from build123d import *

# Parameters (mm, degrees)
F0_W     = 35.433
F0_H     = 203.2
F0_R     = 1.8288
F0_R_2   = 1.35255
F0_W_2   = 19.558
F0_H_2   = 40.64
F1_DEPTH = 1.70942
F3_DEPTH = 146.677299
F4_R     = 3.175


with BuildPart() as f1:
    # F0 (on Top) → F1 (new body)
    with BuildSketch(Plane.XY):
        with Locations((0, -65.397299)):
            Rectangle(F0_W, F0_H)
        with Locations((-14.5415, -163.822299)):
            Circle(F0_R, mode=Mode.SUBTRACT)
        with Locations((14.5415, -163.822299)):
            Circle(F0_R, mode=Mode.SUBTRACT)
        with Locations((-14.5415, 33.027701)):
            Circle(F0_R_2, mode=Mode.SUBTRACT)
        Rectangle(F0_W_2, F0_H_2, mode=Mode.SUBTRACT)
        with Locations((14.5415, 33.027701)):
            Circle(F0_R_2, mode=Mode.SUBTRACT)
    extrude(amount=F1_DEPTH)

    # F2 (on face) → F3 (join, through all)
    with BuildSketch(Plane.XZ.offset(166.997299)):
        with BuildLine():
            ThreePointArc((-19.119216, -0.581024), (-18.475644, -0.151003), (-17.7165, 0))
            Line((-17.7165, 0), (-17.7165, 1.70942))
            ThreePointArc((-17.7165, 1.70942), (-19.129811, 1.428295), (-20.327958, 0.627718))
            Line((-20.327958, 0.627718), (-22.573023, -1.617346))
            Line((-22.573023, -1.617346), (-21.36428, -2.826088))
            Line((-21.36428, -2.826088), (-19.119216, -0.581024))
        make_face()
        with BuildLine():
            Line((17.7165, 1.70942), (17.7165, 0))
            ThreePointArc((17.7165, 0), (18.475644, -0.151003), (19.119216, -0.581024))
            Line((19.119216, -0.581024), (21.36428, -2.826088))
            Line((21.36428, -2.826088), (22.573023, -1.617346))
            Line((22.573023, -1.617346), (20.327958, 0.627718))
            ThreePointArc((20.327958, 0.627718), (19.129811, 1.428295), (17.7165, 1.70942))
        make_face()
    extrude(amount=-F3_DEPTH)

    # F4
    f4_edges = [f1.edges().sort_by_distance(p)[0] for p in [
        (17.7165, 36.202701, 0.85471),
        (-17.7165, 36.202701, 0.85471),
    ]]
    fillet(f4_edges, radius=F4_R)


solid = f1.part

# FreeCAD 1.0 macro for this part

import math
import FreeCAD as App
import Part
import Sketcher

V = App.Vector
Q = App.Units.Quantity


def edges_at(feature, points):
    """Names of the edges that pass closest to the given points."""
    edges = feature.Shape.Edges
    near = lambda p: min(range(len(edges)), key=lambda i: edges[i].distToShape(Part.Vertex(*p))[0])
    return sorted({f"Edge{near(p) + 1}" for p in points})

doc = App.newDocument("Part")
body = doc.addObject("PartDesign::Body", "Body")

# Sketch on XY plane
sketch1 = body.newObject("Sketcher::SketchObject", "Sketch")
sketch1.AttachmentSupport = (doc.getObject("XY_Plane"), [""])
sketch1.MapMode = "FlatFace"
sketch1.addGeometry([
    Part.LineSegment(V(-17.7, 36.2, 0), V(-17.7, -167, 0)),  # 0
    Part.LineSegment(V(-17.7, -167, 0), V(17.7, -167, 0)),  # 1
    Part.LineSegment(V(17.7, -167, 0), V(17.7, 36.2, 0)),  # 2
    Part.LineSegment(V(17.7, 36.2, 0), V(-17.7, 36.2, 0)),  # 3
    Part.Circle(V(-14.5, -163.8, 0), V(0, 0, 1), 1.8),  # 4
    Part.Circle(V(14.5, -163.8, 0), V(0, 0, 1), 1.8),  # 5
    Part.Circle(V(-14.5, 33, 0), V(0, 0, 1), 1.4),  # 6
    Part.LineSegment(V(9.8, -20.3, 0), V(-9.8, -20.3, 0)),  # 7
    Part.LineSegment(V(-9.8, -20.3, 0), V(-9.8, 20.3, 0)),  # 8
    Part.LineSegment(V(-9.8, 20.3, 0), V(9.8, 20.3, 0)),  # 9
    Part.LineSegment(V(9.8, 20.3, 0), V(9.8, -20.3, 0)),  # 10
    Part.Circle(V(14.5, 33, 0), V(0, 0, 1), 1.4),  # 11
], False)
sketch1.addConstraint([
    Sketcher.Constraint("Coincident", 0, 2, 1, 1),
    Sketcher.Constraint("Coincident", 1, 2, 2, 1),
    Sketcher.Constraint("Coincident", 2, 2, 3, 1),
    Sketcher.Constraint("Coincident", 3, 2, 0, 1),
    Sketcher.Constraint("Coincident", 7, 2, 8, 1),
    Sketcher.Constraint("Coincident", 8, 2, 9, 1),
    Sketcher.Constraint("Coincident", 9, 2, 10, 1),
    Sketcher.Constraint("Coincident", 10, 2, 7, 1),
    Sketcher.Constraint("Vertical", 0),
    Sketcher.Constraint("Horizontal", 1),
    Sketcher.Constraint("Vertical", 2),
    Sketcher.Constraint("Horizontal", 3),
    Sketcher.Constraint("Horizontal", 7),
    Sketcher.Constraint("Vertical", 8),
    Sketcher.Constraint("Horizontal", 9),
    Sketcher.Constraint("Vertical", 10),
    Sketcher.Constraint("Equal", 4, 5),
    Sketcher.Constraint("Equal", 6, 11),
    Sketcher.Constraint("Symmetric", 7, 2, 9, 2, -1, 1),
    Sketcher.Constraint("Symmetric", 4, 3, 5, 3, -2),
    Sketcher.Constraint("Symmetric", 6, 3, 11, 3, -2),
    Sketcher.Constraint("Vertical", 4, 3, 6, 3),
    Sketcher.Constraint("DistanceY", 0, 2, 0, 1, Q("8 in")),
    Sketcher.Constraint("Diameter", 4, Q("0.144 in")),
    Sketcher.Constraint("DistanceY", 8, 1, 8, 2, Q("1.6 in")),
    Sketcher.Constraint("Diameter", 6, Q("0.1065 in")),
    Sketcher.Constraint("DistanceX", 7, 2, 7, 1, Q("0.77 in")),
    Sketcher.Constraint("DistanceX", 1, 1, 1, 2, Q("1.395 in")),
    Sketcher.Constraint("DistanceY", 4, 3, 6, 3, Q("7.75 in")),
    Sketcher.Constraint("DistanceX", 0, 2, 5, 3, Q("1.27 in")),
    Sketcher.Constraint("DistanceX", 4, 3, 1, 2, Q("1.27 in")),
    Sketcher.Constraint("DistanceY", 0, 2, 4, 3, Q("0.125 in")),
    Sketcher.Constraint("DistanceY", 4, 3, -1, 1, Q("163.822299 mm")),
])
pad1 = body.newObject("PartDesign::Pad", "Pad")
pad1.Profile = sketch1
pad1.Length = Q("0.0673 in")

# Sketch on XZ plane
sketch2 = body.newObject("Sketcher::SketchObject", "Sketch001")
sketch2.AttachmentSupport = (doc.getObject("XZ_Plane"), [""])
sketch2.MapMode = "FlatFace"
sketch2.AttachmentOffset = App.Placement(V(0, 0, 166.997299), App.Rotation())
sketch2.addGeometry([
    Part.ArcOfCircle(Part.Circle(V(-17.7, -2, 0), V(0, 0, 1), 2), math.radians(90), math.radians(135)),  # 0
    Part.LineSegment(V(-17.7, 0, 0), V(-17.7, 1.7, 0)),  # 1
    Part.ArcOfCircle(Part.Circle(V(-17.7, -2, 0), V(0, 0, 1), 3.7), math.radians(90), math.radians(135)),  # 2
    Part.LineSegment(V(-20.3, 0.6, 0), V(-22.6, -1.6, 0)),  # 3
    Part.LineSegment(V(-22.6, -1.6, 0), V(-21.4, -2.8, 0)),  # 4
    Part.LineSegment(V(-21.4, -2.8, 0), V(-19.1, -0.6, 0)),  # 5
    Part.LineSegment(V(17.7, 1.7, 0), V(17.7, 0, 0)),  # 6
    Part.ArcOfCircle(Part.Circle(V(17.7, -2, 0), V(0, 0, 1), 2), math.radians(45), math.radians(90)),  # 7
    Part.LineSegment(V(19.1, -0.6, 0), V(21.4, -2.8, 0)),  # 8
    Part.LineSegment(V(21.4, -2.8, 0), V(22.6, -1.6, 0)),  # 9
    Part.LineSegment(V(22.6, -1.6, 0), V(20.3, 0.6, 0)),  # 10
    Part.ArcOfCircle(Part.Circle(V(17.7, -2, 0), V(0, 0, 1), 3.7), math.radians(45), math.radians(90)),  # 11
], False)
sketch2.addConstraint([
    Sketcher.Constraint("Coincident", 0, 1, 1, 1),
    Sketcher.Constraint("Coincident", 1, 2, 2, 1),
    Sketcher.Constraint("Tangent", 2, 2, 3, 1),
    Sketcher.Constraint("Coincident", 3, 2, 4, 1),
    Sketcher.Constraint("Coincident", 4, 2, 5, 1),
    Sketcher.Constraint("Tangent", 5, 2, 0, 2),
    Sketcher.Constraint("Coincident", 6, 2, 7, 2),
    Sketcher.Constraint("Tangent", 7, 1, 8, 1),
    Sketcher.Constraint("Coincident", 8, 2, 9, 1),
    Sketcher.Constraint("Coincident", 9, 2, 10, 1),
    Sketcher.Constraint("Tangent", 10, 2, 11, 1),
    Sketcher.Constraint("Coincident", 11, 2, 6, 1),
    Sketcher.Constraint("Vertical", 1),
    Sketcher.Constraint("Vertical", 6),
    Sketcher.Constraint("Coincident", 2, 3, 0, 3),
    Sketcher.Constraint("Coincident", 11, 3, 7, 3),
    Sketcher.Constraint("Equal", 0, 7),
    Sketcher.Constraint("Equal", 2, 11),
    Sketcher.Constraint("Symmetric", 0, 1, 6, 2, -1, 1),
    Sketcher.Constraint("Symmetric", 0, 3, 7, 3, -2),
    Sketcher.Constraint("Symmetric", 4, 2, 8, 2, -2),
    Sketcher.Constraint("Symmetric", 3, 2, 9, 2, -2),
    Sketcher.Constraint("Perpendicular", 3, 4),
    Sketcher.Constraint("Perpendicular", 4, 5),
    Sketcher.Constraint("Perpendicular", 5, 8),
    Sketcher.Constraint("Vertical", 2, 3, 0, 1),
    Sketcher.Constraint("Radius", 0, Q("0.0781 in")),
    Sketcher.Constraint("Radius", 2, Q("0.1453998 in")),
    Sketcher.Constraint("Distance", 3, Q("0.125 in")),
    Sketcher.Constraint("DistanceX", 0, 3, 7, 3, Q("1.395 in")),
])
pad2 = body.newObject("PartDesign::Pad", "Pad001")
pad2.Profile = sketch2
pad2.Length = 146.677299
pad2.Reversed = True
doc.recompute()

fillet = body.newObject("PartDesign::Fillet", "Fillet")
fillet.Base = (pad2, edges_at(pad2, [(17.716, 36.203, 0.855), (-17.716, 36.203, 0.855)]))
fillet.Radius = Q("0.125 in")

doc.recompute()
